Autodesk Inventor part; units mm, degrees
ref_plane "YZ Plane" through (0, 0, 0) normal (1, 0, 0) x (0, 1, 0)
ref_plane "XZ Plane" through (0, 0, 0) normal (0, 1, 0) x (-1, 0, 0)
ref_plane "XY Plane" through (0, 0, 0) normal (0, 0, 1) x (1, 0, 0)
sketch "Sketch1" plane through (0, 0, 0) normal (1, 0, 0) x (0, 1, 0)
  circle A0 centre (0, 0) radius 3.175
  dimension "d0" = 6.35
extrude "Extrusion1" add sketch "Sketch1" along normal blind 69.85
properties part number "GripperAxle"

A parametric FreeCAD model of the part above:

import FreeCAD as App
import Part
import Sketcher
Q = App.Units.Quantity

doc = App.newDocument("Part")
params = doc.addObject("Spreadsheet::Sheet", "Params")
for row, (alias, value) in enumerate([
    ("sketch1_diameter", "0.25 in"),
    ("pad1_length", "2.75 in"),
], start=1):
    params.set(f"A{row}", alias)
    params.set(f"B{row}", "=" + value)
    params.setAlias(f"B{row}", alias)

body = doc.addObject("PartDesign::Body", "Body")

# Sketch on YZ plane
sketch1 = body.newObject("Sketcher::SketchObject", "Sketch")
sketch1.AttachmentSupport = (doc.getObject("YZ_Plane"), [""])
sketch1.MapMode = "FlatFace"
sketch1.addGeometry(Part.Circle(App.Vector(0, 0, 0), App.Vector(0, 0, 1), 3.2), False)
sketch1.addConstraint([
    Sketcher.Constraint("Coincident", 0, 3, -1, 1),
    Sketcher.Constraint("Diameter", 0, Q("0.25 in")),
])
sketch1.setExpression("Constraints[1]", "Params.sketch1_diameter")
pad1 = body.newObject("PartDesign::Pad", "Pad")
pad1.Profile = sketch1
pad1.setExpression("Length", "Params.pad1_length")

doc.recompute()
